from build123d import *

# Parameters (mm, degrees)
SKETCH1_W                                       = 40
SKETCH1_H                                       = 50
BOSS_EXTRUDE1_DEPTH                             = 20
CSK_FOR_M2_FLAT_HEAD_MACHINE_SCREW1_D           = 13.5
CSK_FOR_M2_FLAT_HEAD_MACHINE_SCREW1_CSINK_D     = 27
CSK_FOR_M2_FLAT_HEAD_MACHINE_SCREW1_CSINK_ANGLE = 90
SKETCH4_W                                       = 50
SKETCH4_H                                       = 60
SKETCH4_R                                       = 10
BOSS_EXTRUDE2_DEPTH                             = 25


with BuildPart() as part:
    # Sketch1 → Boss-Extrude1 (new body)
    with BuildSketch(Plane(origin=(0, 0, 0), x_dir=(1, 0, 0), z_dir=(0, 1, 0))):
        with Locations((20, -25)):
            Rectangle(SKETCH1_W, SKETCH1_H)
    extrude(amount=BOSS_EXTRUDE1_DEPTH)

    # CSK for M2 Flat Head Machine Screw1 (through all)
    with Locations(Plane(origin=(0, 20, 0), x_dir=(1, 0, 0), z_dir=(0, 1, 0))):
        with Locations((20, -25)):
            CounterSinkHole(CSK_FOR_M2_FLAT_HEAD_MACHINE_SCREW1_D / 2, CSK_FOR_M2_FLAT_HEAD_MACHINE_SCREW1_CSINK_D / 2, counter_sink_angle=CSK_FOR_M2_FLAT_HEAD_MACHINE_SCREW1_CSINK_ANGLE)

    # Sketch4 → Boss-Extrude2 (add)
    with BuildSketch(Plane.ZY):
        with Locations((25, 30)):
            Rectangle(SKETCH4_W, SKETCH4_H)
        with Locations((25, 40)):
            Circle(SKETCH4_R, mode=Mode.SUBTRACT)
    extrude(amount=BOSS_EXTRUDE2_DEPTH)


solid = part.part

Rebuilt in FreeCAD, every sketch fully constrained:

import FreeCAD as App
import Part
import Sketcher

V = App.Vector
Q = App.Units.Quantity

doc = App.newDocument("Part")
body = doc.addObject("PartDesign::Body", "Body")

# Sketch on XZ plane
sketch1 = body.newObject("Sketcher::SketchObject", "Sketch")
sketch1.AttachmentSupport = (doc.getObject("XZ_Plane"), [""])
sketch1.MapMode = "FlatFace"
sketch1.addGeometry(Part.LineSegment(V(0, 0, 0), V(0, 50, 0)), False)
sketch1.addGeometry(Part.LineSegment(V(0, 50, 0), V(40, 50, 0)), False)
sketch1.addGeometry(Part.LineSegment(V(40, 50, 0), V(40, 0, 0)), False)
sketch1.addGeometry(Part.LineSegment(V(40, 0, 0), V(0, 0, 0)), False)
sketch1.addConstraint(Sketcher.Constraint("Coincident", 0, 2, 1, 1))
sketch1.addConstraint(Sketcher.Constraint("Coincident", 1, 2, 2, 1))
sketch1.addConstraint(Sketcher.Constraint("Coincident", 2, 2, 3, 1))
sketch1.addConstraint(Sketcher.Constraint("Coincident", 3, 2, 0, 1))
sketch1.addConstraint(Sketcher.Constraint("Vertical", 0))
sketch1.addConstraint(Sketcher.Constraint("Horizontal", 1))
sketch1.addConstraint(Sketcher.Constraint("Vertical", 2))
sketch1.addConstraint(Sketcher.Constraint("Horizontal", 3))
sketch1.addConstraint(Sketcher.Constraint("Coincident", 3, 2, -1, 1))
sketch1.addConstraint(Sketcher.Constraint("DistanceX", 1, 1, 1, 2, Q("40 mm")))
sketch1.addConstraint(Sketcher.Constraint("DistanceY", 0, 1, 0, 2, Q("50 mm")))
pad1 = body.newObject("PartDesign::Pad", "Pad")
pad1.Profile = sketch1
pad1.Length = 20
pad1.Reversed = True

# Sketch on XZ plane
sketch2 = body.newObject("Sketcher::SketchObject", "Sketch001")
sketch2.AttachmentSupport = (doc.getObject("XZ_Plane"), [""])
sketch2.MapMode = "FlatFace"
sketch2.AttachmentOffset = App.Placement(V(0, 0, -20), App.Rotation())
sketch2.addGeometry(Part.Circle(V(20, 25, 0), V(0, 0, 1), 7), False)
sketch2.addConstraint(Sketcher.Constraint("Diameter", 0, Q("13.5 mm")))
sketch2.addConstraint(Sketcher.Constraint("DistanceX", -1, 1, 0, 3, Q("20 mm")))
sketch2.addConstraint(Sketcher.Constraint("DistanceY", -1, 1, 0, 3, Q("25 mm")))
doc.recompute()
hole = body.newObject("PartDesign::Hole", "Hole")
hole.Profile = sketch2
hole.ThreadType = "None"
hole.Diameter = 13.5
hole.DepthType = "ThroughAll"
hole.HoleCutType = "Countersink"
hole.HoleCutDiameter = 27
hole.HoleCutCountersinkAngle = 90
hole.Reversed = True

# Sketch on YZ plane
sketch3 = body.newObject("Sketcher::SketchObject", "Sketch002")
sketch3.AttachmentSupport = (doc.getObject("YZ_Plane"), [""])
sketch3.MapMode = "FlatFace"
sketch3.addGeometry(Part.LineSegment(V(60, 0, 0), V(0, 0, 0)), False)
sketch3.addGeometry(Part.LineSegment(V(0, 0, 0), V(0, 50, 0)), False)
sketch3.addGeometry(Part.LineSegment(V(0, 50, 0), V(60, 50, 0)), False)
sketch3.addGeometry(Part.LineSegment(V(60, 50, 0), V(60, 0, 0)), False)
sketch3.addGeometry(Part.Circle(V(40, 25, 0), V(0, 0, 1), 10), False)
sketch3.addConstraint(Sketcher.Constraint("Coincident", 0, 2, 1, 1))
sketch3.addConstraint(Sketcher.Constraint("Coincident", 1, 2, 2, 1))
sketch3.addConstraint(Sketcher.Constraint("Coincident", 2, 2, 3, 1))
sketch3.addConstraint(Sketcher.Constraint("Coincident", 3, 2, 0, 1))
sketch3.addConstraint(Sketcher.Constraint("Horizontal", 0))
sketch3.addConstraint(Sketcher.Constraint("Vertical", 1))
sketch3.addConstraint(Sketcher.Constraint("Horizontal", 2))
sketch3.addConstraint(Sketcher.Constraint("Vertical", 3))
sketch3.addConstraint(Sketcher.Constraint("Coincident", 0, 2, -1, 1))
sketch3.addConstraint(Sketcher.Constraint("Diameter", 4, Q("20 mm")))
sketch3.addConstraint(Sketcher.Constraint("DistanceX", 0, 2, 0, 1, Q("60 mm")))
sketch3.addConstraint(Sketcher.Constraint("DistanceY", 1, 1, 1, 2, Q("50 mm")))
sketch3.addConstraint(Sketcher.Constraint("DistanceX", -1, 1, 4, 3, Q("40 mm")))
sketch3.addConstraint(Sketcher.Constraint("DistanceY", -1, 1, 4, 3, Q("25 mm")))
pad2 = body.newObject("PartDesign::Pad", "Pad001")
pad2.Profile = sketch3
pad2.Length = 25
pad2.Reversed = True

doc.recompute()
